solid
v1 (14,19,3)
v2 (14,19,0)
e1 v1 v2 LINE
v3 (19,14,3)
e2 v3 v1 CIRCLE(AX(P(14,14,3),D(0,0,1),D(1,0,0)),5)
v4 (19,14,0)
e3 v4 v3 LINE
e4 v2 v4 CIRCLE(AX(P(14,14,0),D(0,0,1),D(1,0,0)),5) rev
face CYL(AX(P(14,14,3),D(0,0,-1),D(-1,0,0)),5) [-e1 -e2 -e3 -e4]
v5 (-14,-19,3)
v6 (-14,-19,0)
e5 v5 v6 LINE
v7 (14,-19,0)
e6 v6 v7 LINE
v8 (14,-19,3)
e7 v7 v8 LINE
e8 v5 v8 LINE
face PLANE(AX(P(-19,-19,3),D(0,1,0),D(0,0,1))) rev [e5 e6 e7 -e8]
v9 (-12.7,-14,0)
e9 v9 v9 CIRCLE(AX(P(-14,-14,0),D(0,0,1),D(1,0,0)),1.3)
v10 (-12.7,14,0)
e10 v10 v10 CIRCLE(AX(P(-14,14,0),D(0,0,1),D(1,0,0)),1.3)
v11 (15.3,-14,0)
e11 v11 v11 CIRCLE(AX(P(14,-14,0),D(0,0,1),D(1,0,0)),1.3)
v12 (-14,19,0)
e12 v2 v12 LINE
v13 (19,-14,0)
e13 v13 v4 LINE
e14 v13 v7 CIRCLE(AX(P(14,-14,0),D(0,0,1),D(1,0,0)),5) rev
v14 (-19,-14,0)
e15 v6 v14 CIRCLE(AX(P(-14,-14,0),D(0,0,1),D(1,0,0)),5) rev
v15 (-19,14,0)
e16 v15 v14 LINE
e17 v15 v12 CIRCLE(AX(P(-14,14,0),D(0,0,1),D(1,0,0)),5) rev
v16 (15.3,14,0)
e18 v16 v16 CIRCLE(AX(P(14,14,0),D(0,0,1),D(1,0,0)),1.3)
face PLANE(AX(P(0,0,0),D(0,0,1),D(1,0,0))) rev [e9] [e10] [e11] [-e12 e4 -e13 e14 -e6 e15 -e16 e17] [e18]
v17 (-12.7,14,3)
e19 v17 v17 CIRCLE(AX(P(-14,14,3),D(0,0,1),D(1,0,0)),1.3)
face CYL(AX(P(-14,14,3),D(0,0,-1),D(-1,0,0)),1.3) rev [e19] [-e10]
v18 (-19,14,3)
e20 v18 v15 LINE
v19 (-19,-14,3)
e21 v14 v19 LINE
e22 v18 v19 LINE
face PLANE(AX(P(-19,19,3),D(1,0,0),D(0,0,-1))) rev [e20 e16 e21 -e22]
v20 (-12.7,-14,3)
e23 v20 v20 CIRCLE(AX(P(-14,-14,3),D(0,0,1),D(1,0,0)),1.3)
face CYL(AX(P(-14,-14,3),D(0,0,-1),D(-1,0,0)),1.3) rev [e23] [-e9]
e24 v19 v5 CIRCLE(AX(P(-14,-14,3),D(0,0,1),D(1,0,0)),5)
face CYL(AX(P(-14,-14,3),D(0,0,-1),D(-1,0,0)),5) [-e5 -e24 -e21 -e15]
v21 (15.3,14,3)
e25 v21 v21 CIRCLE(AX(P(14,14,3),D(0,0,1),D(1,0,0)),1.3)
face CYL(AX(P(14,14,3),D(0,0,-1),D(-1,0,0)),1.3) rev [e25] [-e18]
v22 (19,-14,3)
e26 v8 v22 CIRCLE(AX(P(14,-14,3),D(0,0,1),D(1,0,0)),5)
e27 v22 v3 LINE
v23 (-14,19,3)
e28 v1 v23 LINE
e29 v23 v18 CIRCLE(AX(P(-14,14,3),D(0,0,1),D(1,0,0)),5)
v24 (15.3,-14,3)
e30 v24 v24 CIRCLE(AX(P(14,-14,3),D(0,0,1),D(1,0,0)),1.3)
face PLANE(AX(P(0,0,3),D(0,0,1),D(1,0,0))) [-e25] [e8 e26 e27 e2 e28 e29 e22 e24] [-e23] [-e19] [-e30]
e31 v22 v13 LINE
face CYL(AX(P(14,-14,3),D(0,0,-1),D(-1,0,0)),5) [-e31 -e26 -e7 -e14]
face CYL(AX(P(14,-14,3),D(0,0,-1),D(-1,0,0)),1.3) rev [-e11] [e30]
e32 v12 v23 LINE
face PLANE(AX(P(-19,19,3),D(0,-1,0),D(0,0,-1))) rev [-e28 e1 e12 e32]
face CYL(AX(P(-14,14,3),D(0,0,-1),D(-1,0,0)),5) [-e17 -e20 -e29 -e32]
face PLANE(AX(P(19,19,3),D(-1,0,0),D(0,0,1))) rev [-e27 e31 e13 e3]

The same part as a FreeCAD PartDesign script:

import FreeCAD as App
import Part
import Sketcher

V = App.Vector


def edges_at(feature, points):
    """Names of the edges that pass closest to the given points."""
    edges = feature.Shape.Edges
    near = lambda p: min(range(len(edges)), key=lambda i: edges[i].distToShape(Part.Vertex(*p))[0])
    return sorted({f"Edge{near(p) + 1}" for p in points})


def add_polygon(sketch, points):
    """Adds a closed chain of lines whose ends are joined by coincident constraints."""
    first, n = sketch.GeometryCount, len(points)
    for a, b in zip(points, points[1:] + points[:1]):
        sketch.addGeometry(Part.LineSegment(App.Vector(*a, 0), App.Vector(*b, 0)), False)
    for i in range(n):
        sketch.addConstraint(Sketcher.Constraint("Coincident", first + i, 2, first + (i + 1) % n, 1))

doc = App.newDocument("Part")
body = doc.addObject("PartDesign::Body", "Body")

sketch1 = body.newObject("Sketcher::SketchObject", "Sketch")
sketch1.AttachmentSupport = (doc.getObject("XY_Plane"), [""])
sketch1.MapMode = "FlatFace"
add_polygon(sketch1, [(-19, 19), (-19, -19), (19, -19), (19, 19)])
sketch1.addGeometry(Part.Circle(V(-14, -14, 0), V(0, 0, 1), 1.3), False)
sketch1.addGeometry(Part.Circle(V(14, -14, 0), V(0, 0, 1), 1.3), False)
sketch1.addGeometry(Part.Circle(V(-14, 14, 0), V(0, 0, 1), 1.3), False)
sketch1.addGeometry(Part.Circle(V(14, 14, 0), V(0, 0, 1), 1.3), False)
sketch1.addConstraint([
    Sketcher.Constraint("Vertical", 0),
    Sketcher.Constraint("Horizontal", 1),
    Sketcher.Constraint("Vertical", 2),
    Sketcher.Constraint("Horizontal", 3),
    Sketcher.Constraint("Equal", 4, 5),
    Sketcher.Constraint("Equal", 5, 6),
    Sketcher.Constraint("Equal", 6, 7),
    Sketcher.Constraint("Symmetric", 5, 3, 6, 3, -1, 1),
    Sketcher.Constraint("Symmetric", 4, 3, 7, 3, -1, 1),
    Sketcher.Constraint("Symmetric", 0, 2, 2, 2, -1, 1),
    Sketcher.Constraint("Symmetric", 4, 3, 5, 3, -2),
    Sketcher.Constraint("Equal", 3, 0),
    Sketcher.Constraint("Diameter", 4, 2.6),
    Sketcher.Constraint("DistanceX", 1, 1, 1, 2, 38.0),
    Sketcher.Constraint("DistanceX", 4, 3, -1, 1, 14.0),
    Sketcher.Constraint("DistanceY", 4, 3, -1, 1, 14.0),
])
pad1 = body.newObject("PartDesign::Pad", "Pad")
pad1.Profile = sketch1
pad1.Length = 3
doc.recompute()

fillet = body.newObject("PartDesign::Fillet", "Fillet")
fillet.Base = (pad1, edges_at(pad1, [
    (19, -19, 1.5),
    (-19, -19, 1.5),
    (-19, 19, 1.5),
    (19, 19, 1.5),
]))
fillet.Radius = 5

doc.recompute()
